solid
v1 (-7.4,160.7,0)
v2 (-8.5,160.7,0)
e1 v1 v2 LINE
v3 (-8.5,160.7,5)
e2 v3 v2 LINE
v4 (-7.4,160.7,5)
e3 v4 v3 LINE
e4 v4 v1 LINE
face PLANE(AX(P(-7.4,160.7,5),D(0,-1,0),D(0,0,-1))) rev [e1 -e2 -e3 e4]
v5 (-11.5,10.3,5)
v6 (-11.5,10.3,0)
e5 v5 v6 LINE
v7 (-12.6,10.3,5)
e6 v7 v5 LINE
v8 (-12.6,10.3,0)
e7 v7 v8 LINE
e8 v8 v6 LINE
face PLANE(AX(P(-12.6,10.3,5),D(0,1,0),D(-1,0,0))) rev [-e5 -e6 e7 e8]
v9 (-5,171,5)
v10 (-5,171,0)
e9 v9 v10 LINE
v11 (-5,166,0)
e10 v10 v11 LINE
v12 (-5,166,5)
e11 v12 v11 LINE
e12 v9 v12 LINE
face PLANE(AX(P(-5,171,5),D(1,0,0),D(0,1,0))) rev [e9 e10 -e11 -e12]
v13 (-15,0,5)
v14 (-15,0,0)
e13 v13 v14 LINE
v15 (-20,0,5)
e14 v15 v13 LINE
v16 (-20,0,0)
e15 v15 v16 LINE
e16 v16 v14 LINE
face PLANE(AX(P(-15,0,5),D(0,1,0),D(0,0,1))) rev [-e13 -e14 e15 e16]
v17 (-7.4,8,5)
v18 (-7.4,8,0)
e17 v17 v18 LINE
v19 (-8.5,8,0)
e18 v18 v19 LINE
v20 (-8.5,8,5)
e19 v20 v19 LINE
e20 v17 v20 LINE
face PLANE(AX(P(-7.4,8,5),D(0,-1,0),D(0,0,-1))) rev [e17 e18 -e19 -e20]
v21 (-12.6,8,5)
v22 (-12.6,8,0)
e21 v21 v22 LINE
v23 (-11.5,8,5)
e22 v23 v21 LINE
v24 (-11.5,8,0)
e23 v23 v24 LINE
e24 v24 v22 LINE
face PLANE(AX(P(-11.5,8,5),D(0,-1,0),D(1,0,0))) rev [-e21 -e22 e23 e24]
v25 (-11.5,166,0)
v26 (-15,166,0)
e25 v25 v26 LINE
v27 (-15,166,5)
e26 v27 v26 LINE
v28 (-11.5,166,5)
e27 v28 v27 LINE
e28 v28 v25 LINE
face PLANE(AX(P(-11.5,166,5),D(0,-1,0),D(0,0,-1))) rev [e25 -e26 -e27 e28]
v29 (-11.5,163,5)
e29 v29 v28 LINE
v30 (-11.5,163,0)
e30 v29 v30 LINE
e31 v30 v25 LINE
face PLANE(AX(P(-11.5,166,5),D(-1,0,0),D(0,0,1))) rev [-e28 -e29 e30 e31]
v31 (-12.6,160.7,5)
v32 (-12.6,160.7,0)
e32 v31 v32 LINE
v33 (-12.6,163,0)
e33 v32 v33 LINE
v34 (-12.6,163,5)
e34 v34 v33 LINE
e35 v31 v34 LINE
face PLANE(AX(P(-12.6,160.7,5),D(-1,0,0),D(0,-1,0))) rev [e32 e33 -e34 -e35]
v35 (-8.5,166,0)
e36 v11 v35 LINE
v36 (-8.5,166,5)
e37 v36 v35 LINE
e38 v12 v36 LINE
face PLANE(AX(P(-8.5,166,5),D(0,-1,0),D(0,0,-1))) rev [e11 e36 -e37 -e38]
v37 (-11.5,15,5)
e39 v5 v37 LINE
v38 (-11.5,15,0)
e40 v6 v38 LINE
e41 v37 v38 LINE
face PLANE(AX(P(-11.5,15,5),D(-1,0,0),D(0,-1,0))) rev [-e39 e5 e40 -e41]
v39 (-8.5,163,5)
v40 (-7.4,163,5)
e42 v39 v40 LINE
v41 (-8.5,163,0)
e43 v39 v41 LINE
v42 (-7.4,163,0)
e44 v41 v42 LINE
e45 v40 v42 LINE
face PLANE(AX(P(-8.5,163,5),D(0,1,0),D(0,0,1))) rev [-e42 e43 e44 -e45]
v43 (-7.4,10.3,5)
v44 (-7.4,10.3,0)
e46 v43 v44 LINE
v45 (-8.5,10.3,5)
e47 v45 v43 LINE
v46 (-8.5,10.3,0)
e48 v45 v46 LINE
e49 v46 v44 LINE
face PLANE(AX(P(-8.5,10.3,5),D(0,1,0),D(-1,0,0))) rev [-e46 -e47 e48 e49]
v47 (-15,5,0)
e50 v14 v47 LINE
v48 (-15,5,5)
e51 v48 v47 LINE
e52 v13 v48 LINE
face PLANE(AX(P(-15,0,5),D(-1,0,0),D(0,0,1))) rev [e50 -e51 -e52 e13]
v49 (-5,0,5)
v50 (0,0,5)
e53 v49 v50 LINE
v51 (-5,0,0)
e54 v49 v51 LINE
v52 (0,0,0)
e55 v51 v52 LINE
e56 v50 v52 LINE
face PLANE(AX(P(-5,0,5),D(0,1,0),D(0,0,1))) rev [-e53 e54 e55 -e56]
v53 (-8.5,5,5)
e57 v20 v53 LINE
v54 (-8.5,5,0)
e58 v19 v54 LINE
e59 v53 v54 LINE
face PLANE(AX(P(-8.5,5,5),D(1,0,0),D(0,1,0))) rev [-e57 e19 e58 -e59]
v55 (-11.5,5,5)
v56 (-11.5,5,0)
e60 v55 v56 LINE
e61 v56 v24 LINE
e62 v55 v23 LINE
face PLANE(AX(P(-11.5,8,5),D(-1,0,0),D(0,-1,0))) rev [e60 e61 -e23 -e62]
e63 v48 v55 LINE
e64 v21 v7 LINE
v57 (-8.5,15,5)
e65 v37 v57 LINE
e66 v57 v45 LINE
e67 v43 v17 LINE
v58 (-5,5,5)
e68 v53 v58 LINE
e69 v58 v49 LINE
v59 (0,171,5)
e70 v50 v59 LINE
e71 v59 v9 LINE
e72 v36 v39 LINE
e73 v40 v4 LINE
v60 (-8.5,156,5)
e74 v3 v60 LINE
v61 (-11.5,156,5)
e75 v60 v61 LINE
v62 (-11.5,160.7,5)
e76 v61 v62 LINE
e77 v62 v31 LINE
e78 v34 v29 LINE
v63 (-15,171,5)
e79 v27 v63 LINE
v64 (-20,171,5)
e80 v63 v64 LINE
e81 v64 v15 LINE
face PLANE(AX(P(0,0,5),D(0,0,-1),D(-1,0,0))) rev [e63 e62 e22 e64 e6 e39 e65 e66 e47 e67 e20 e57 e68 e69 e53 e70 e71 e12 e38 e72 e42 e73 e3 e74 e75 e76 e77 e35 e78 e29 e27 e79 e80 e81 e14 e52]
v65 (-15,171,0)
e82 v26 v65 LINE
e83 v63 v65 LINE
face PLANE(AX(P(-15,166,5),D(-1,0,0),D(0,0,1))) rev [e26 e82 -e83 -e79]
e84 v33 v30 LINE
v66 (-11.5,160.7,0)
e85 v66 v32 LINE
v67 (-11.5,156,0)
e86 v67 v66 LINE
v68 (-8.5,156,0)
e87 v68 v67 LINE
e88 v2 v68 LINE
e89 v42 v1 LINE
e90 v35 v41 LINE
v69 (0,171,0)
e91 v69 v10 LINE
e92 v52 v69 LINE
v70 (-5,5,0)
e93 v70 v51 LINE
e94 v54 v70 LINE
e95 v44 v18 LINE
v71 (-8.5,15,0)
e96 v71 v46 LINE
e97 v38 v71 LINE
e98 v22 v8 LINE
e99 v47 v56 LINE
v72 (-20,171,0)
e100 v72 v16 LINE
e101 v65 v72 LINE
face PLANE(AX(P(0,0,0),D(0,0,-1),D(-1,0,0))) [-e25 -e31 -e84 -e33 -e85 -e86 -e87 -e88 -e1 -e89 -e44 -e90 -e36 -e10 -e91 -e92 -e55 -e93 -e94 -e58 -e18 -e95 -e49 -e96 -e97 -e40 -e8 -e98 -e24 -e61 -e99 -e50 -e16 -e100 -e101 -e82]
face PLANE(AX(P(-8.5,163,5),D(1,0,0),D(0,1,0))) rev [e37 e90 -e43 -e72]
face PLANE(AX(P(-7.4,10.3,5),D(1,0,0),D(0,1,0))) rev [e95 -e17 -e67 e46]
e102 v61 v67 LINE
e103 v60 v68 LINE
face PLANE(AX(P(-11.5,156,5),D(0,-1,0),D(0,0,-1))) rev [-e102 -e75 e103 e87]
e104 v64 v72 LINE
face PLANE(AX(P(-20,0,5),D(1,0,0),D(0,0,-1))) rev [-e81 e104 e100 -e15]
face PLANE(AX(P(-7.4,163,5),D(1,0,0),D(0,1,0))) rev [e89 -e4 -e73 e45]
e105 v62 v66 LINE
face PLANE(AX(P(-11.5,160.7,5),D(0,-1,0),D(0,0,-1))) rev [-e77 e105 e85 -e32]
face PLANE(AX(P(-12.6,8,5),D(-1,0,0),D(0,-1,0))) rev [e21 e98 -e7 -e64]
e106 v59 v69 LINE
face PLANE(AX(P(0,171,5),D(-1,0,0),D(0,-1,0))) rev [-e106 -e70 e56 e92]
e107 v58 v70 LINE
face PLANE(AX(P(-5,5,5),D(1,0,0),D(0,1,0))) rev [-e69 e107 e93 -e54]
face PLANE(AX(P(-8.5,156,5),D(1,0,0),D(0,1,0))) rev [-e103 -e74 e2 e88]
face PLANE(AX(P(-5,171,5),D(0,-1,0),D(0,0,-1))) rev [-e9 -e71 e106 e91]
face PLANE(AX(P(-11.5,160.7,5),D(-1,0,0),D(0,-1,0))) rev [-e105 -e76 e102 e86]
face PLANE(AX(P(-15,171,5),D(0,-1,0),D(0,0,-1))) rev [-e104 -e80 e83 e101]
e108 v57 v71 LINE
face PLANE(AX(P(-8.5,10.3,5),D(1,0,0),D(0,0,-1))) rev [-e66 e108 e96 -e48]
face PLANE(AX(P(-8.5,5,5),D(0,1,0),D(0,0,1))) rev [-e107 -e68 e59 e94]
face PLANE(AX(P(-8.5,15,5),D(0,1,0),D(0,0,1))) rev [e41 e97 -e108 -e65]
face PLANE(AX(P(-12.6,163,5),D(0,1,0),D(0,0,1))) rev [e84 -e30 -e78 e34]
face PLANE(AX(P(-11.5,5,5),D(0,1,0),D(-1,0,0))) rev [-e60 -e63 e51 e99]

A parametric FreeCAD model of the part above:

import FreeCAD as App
import Part
import Sketcher
Q = App.Units.Quantity


def add_polygon(sketch, points):
    """Adds a closed chain of lines whose ends are joined by coincident constraints."""
    first, n = sketch.GeometryCount, len(points)
    for a, b in zip(points, points[1:] + points[:1]):
        sketch.addGeometry(Part.LineSegment(App.Vector(*a, 0), App.Vector(*b, 0)), False)
    for i in range(n):
        sketch.addConstraint(Sketcher.Constraint("Coincident", first + i, 2, first + (i + 1) % n, 1))

doc = App.newDocument("Part")
body = doc.addObject("PartDesign::Body", "Body")

# Sketch on XY plane
sketch1 = body.newObject("Sketcher::SketchObject", "Sketch")
sketch1.AttachmentSupport = (doc.getObject("XY_Plane"), [""])
sketch1.MapMode = "FlatFace"
add_polygon(sketch1, [(0, 0), (0, 171), (-5, 171), (-5, 166), (-8.5, 166), (-8.5, 163), (-7.4, 163), (-7.4, 160.7), (-8.5, 160.7), (-8.5, 156), (-11.5, 156), (-11.5, 160.7), (-12.6, 160.7), (-12.6, 163), (-11.5, 163), (-11.5, 166), (-15, 166), (-15, 171), (-20, 171), (-20, 0), (-15, 0), (-15, 5), (-11.5, 5), (-11.5, 8), (-12.6, 8), (-12.6, 10.3), (-11.5, 10.3), (-11.5, 15), (-8.5, 15), (-8.5, 10.3), (-7.4, 10.3), (-7.4, 8), (-8.5, 8), (-8.5, 5), (-5, 5), (-5, 0)])  # lines 0-35
sketch1.addConstraint([
    Sketcher.Constraint("Vertical", 0),
    Sketcher.Constraint("Horizontal", 1),
    Sketcher.Constraint("Vertical", 2),
    Sketcher.Constraint("Horizontal", 3),
    Sketcher.Constraint("Vertical", 4),
    Sketcher.Constraint("Horizontal", 5),
    Sketcher.Constraint("Vertical", 6),
    Sketcher.Constraint("Horizontal", 7),
    Sketcher.Constraint("Vertical", 8),
    Sketcher.Constraint("Horizontal", 9),
    Sketcher.Constraint("Vertical", 10),
    Sketcher.Constraint("Horizontal", 11),
    Sketcher.Constraint("Vertical", 12),
    Sketcher.Constraint("Horizontal", 13),
    Sketcher.Constraint("Vertical", 14),
    Sketcher.Constraint("Horizontal", 15),
    Sketcher.Constraint("Vertical", 16),
    Sketcher.Constraint("Horizontal", 17),
    Sketcher.Constraint("Vertical", 18),
    Sketcher.Constraint("Horizontal", 19),
    Sketcher.Constraint("Vertical", 20),
    Sketcher.Constraint("Horizontal", 21),
    Sketcher.Constraint("Vertical", 22),
    Sketcher.Constraint("Horizontal", 23),
    Sketcher.Constraint("Vertical", 24),
    Sketcher.Constraint("Horizontal", 25),
    Sketcher.Constraint("Vertical", 26),
    Sketcher.Constraint("Horizontal", 27),
    Sketcher.Constraint("Vertical", 28),
    Sketcher.Constraint("Horizontal", 29),
    Sketcher.Constraint("Vertical", 30),
    Sketcher.Constraint("Horizontal", 31),
    Sketcher.Constraint("Vertical", 32),
    Sketcher.Constraint("Horizontal", 33),
    Sketcher.Constraint("Vertical", 34),
    Sketcher.Constraint("Horizontal", 35),
    Sketcher.Constraint("Coincident", 35, 2, -1, 1),
    Sketcher.Constraint("PointOnObject", 18, 2, -1),
    Sketcher.Constraint("Horizontal", 7, 2, 10, 2),
    Sketcher.Constraint("Horizontal", 5, 2, 12, 2),
    Sketcher.Constraint("Horizontal", 3, 2, 14, 2),
    Sketcher.Constraint("Horizontal", 1, 2, 16, 2),
    Sketcher.Constraint("Horizontal", 25, 2, 28, 2),
    Sketcher.Constraint("Horizontal", 23, 2, 30, 2),
    Sketcher.Constraint("Horizontal", 21, 2, 32, 2),
    Sketcher.Constraint("Vertical", 4, 2, 7, 2),
    Sketcher.Constraint("Vertical", 10, 2, 13, 2),
    Sketcher.Constraint("Vertical", 16, 2, 19, 2),
    Sketcher.Constraint("Vertical", 14, 2, 21, 2),
    Sketcher.Constraint("Vertical", 12, 2, 23, 2),
    Sketcher.Constraint("Vertical", 22, 2, 25, 2),
    Sketcher.Constraint("Vertical", 8, 2, 27, 2),
    Sketcher.Constraint("Vertical", 6, 2, 29, 2),
    Sketcher.Constraint("Vertical", 28, 2, 31, 2),
    Sketcher.Constraint("Vertical", 2, 2, 33, 2),
    Sketcher.Constraint("Equal", 7, 11),
    Sketcher.Constraint("Equal", 3, 15),
    Sketcher.Constraint("Equal", 1, 17),
    Sketcher.Constraint("Equal", 35, 2),
    Sketcher.Constraint("Equal", 27, 4),
    Sketcher.Constraint("Equal", 16, 20),
    Sketcher.Constraint("Equal", 14, 22),
    Sketcher.Constraint("Equal", 12, 24),
    Sketcher.Constraint("Equal", 10, 26),
    Sketcher.Constraint("DistanceX", 1, 2, 1, 1, Q("5 mm")),
    Sketcher.Constraint("DistanceX", 9, 2, 9, 1, Q("3 mm")),
    Sketcher.Constraint("DistanceY", 0, 1, 0, 2, Q("171 mm")),
    Sketcher.Constraint("DistanceX", 3, 2, 3, 1, Q("3.5 mm")),
    Sketcher.Constraint("DistanceX", 5, 1, 5, 2, Q("1.1 mm")),
    Sketcher.Constraint("DistanceY", 6, 2, 6, 1, Q("2.3 mm")),
    Sketcher.Constraint("DistanceY", 8, 2, 8, 1, Q("4.7 mm")),
])
pad1 = body.newObject("PartDesign::Pad", "Pad")
pad1.Profile = sketch1
pad1.Length = 5

doc.recompute()
